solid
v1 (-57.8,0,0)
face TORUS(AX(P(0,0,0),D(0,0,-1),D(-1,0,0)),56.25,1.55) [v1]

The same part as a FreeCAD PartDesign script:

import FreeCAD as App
import Part
import Sketcher
Q = App.Units.Quantity

doc = App.newDocument("Part")
body = doc.addObject("PartDesign::Body", "Body")

# Sketch on XZ plane
sketch1 = body.newObject("Sketcher::SketchObject", "Sketch")
sketch1.AttachmentSupport = (doc.getObject("XZ_Plane"), [""])
sketch1.MapMode = "FlatFace"
sketch1.addGeometry(Part.Circle(App.Vector(-56.25, 0, 0), App.Vector(0, 0, 1), 1.55), False)
sketch1.addConstraint(Sketcher.Constraint("PointOnObject", 0, 3, -1))
sketch1.addConstraint(Sketcher.Constraint("Diameter", 0, Q("3.1 mm")))
sketch1.addConstraint(Sketcher.Constraint("DistanceX", 0, 3, -1, 1, Q("56.25 mm")))

# Sketch on XY plane
sketch2 = body.newObject("Sketcher::SketchObject", "Sketch001")
sketch2.AttachmentSupport = (doc.getObject("XY_Plane"), [""])
sketch2.MapMode = "FlatFace"
sketch2.addGeometry(Part.Circle(App.Vector(0, 0, 0), App.Vector(0, 0, 1), 54.7), False)
sketch2.addConstraint(Sketcher.Constraint("Coincident", 0, 3, -1, 1))
sketch2.addConstraint(Sketcher.Constraint("Diameter", 0, Q("109.4 mm")))
doc.recompute()

additivepipe = body.newObject("PartDesign::AdditivePipe", "AdditivePipe")
additivepipe.Profile = sketch1
additivepipe.Spine = (sketch2, ["Edge1"])

doc.recompute()
